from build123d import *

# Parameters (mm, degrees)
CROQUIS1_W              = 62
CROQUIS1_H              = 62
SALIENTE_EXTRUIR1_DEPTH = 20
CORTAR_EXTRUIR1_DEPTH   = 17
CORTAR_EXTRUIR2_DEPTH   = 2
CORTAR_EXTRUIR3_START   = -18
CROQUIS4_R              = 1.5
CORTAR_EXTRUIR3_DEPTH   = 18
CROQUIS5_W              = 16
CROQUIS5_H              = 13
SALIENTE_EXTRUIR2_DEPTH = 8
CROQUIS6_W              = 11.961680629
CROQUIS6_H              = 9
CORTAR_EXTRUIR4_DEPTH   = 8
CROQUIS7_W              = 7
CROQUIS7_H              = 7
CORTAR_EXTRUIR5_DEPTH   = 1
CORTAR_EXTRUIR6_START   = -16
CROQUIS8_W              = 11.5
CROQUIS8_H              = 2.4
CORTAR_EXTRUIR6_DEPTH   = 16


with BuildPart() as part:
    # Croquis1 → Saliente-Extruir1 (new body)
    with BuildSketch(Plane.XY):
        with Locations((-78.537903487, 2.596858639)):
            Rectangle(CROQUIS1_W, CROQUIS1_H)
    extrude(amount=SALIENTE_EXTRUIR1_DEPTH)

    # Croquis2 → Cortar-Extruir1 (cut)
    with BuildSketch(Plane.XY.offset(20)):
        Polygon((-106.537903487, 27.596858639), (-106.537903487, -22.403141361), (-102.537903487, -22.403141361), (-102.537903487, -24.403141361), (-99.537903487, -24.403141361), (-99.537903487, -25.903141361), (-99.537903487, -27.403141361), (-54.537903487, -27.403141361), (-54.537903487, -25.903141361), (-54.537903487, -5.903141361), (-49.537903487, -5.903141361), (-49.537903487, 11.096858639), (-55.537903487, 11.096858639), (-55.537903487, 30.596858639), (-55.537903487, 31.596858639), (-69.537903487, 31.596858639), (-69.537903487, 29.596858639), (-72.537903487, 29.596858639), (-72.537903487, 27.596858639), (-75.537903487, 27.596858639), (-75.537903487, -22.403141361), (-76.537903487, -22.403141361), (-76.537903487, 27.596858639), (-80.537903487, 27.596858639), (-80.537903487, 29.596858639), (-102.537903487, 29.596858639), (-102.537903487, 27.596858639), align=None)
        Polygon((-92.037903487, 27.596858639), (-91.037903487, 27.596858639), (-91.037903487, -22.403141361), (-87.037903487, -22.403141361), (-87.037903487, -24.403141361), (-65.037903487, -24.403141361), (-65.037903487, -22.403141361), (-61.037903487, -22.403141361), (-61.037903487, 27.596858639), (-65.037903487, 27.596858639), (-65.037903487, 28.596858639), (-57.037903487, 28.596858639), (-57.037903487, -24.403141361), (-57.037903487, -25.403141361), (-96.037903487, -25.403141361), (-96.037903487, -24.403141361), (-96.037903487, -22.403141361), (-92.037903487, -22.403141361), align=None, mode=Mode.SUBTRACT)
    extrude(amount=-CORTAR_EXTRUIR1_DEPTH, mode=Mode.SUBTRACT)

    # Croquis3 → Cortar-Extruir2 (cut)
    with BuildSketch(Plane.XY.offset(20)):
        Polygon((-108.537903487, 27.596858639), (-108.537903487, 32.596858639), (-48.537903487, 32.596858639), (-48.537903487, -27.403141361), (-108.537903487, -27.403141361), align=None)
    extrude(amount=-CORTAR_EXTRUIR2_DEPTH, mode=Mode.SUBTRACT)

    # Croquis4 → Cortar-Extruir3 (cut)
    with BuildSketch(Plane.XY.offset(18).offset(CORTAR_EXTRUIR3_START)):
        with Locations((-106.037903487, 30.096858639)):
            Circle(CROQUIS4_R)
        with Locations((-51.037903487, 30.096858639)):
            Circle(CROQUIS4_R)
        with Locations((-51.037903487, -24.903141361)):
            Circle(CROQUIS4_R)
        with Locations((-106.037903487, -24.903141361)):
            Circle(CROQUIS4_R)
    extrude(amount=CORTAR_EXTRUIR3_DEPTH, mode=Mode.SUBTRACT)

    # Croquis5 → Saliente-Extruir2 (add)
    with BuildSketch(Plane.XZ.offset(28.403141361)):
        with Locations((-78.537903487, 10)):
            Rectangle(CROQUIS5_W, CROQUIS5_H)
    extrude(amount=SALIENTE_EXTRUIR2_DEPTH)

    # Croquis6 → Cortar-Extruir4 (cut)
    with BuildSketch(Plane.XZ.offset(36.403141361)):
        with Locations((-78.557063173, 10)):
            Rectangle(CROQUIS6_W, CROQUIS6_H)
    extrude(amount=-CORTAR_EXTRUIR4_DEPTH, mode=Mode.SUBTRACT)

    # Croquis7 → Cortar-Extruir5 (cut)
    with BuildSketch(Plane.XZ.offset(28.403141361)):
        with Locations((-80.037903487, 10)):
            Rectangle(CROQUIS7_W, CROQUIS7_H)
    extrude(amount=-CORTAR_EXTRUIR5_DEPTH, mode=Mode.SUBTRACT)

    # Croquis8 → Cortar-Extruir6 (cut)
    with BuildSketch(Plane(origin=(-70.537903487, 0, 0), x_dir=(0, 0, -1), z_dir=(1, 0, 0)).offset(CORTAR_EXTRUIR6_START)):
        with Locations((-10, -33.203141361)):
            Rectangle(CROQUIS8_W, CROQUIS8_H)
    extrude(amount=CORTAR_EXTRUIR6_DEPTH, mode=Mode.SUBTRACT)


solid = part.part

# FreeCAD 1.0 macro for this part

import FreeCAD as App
import Part
import Sketcher

V = App.Vector

doc = App.newDocument("Part")
body = doc.addObject("PartDesign::Body", "Body")

# Sketch on XY plane
sketch1 = body.newObject("Sketcher::SketchObject", "Sketch")
sketch1.AttachmentSupport = (doc.getObject("XY_Plane"), [""])
sketch1.MapMode = "FlatFace"
sketch1.addGeometry([
    Part.LineSegment(V(-110, 34, 0), V(-110, -28, 0)),
    Part.LineSegment(V(-110, -28, 0), V(-48, -28, 0)),
    Part.LineSegment(V(-48, -28, 0), V(-48, 34, 0)),
    Part.LineSegment(V(-48, 34, 0), V(-110, 34, 0)),
], False)
sketch1.addConstraint([
    Sketcher.Constraint("Coincident", 0, 2, 1, 1),
    Sketcher.Constraint("Coincident", 1, 2, 2, 1),
    Sketcher.Constraint("Coincident", 2, 2, 3, 1),
    Sketcher.Constraint("Coincident", 3, 2, 0, 1),
    Sketcher.Constraint("Vertical", 0),
    Sketcher.Constraint("Horizontal", 1),
    Sketcher.Constraint("Vertical", 2),
    Sketcher.Constraint("Horizontal", 3),
    Sketcher.Constraint("Equal", 3, 0),
    Sketcher.Constraint("DistanceX", 1, 1, 1, 2, 62.0),
    Sketcher.Constraint("DistanceY", 0, 2, -1, 1, 28.403141),
    Sketcher.Constraint("DistanceX", 0, 2, -1, 1, 109.537903),
])
pad1 = body.newObject("PartDesign::Pad", "Pad")
pad1.Profile = sketch1
pad1.Length = 20

# Sketch on XY plane
sketch2 = body.newObject("Sketcher::SketchObject", "Sketch001")
sketch2.AttachmentSupport = (doc.getObject("XY_Plane"), [""])
sketch2.MapMode = "FlatFace"
sketch2.AttachmentOffset = App.Placement(V(0, 0, 20), App.Rotation())
sketch2.addGeometry([
    Part.LineSegment(V(-106.5, 27.6, 0), V(-106.5, -22.4, 0)),  # 0
    Part.LineSegment(V(-106.5, -22.4, 0), V(-102.5, -22.4, 0)),  # 1
    Part.LineSegment(V(-102.5, -22.4, 0), V(-102.5, -24.4, 0)),  # 2
    Part.LineSegment(V(-102.5, -24.4, 0), V(-99.5, -24.4, 0)),  # 3
    Part.LineSegment(V(-99.5, -24.4, 0), V(-99.5, -27.4, 0)),  # 4
    Part.LineSegment(V(-99.5, -27.4, 0), V(-54.5, -27.4, 0)),  # 5
    Part.LineSegment(V(-54.5, -27.4, 0), V(-54.5, -5.9, 0)),  # 6
    Part.LineSegment(V(-54.5, -5.9, 0), V(-49.5, -5.9, 0)),  # 7
    Part.LineSegment(V(-49.5, -5.9, 0), V(-49.5, 11.1, 0)),  # 8
    Part.LineSegment(V(-49.5, 11.1, 0), V(-55.5, 11.1, 0)),  # 9
    Part.LineSegment(V(-55.5, 11.1, 0), V(-55.5, 31.6, 0)),  # 10
    Part.LineSegment(V(-55.5, 31.6, 0), V(-69.5, 31.6, 0)),  # 11
    Part.LineSegment(V(-69.5, 31.6, 0), V(-69.5, 29.6, 0)),  # 12
    Part.LineSegment(V(-69.5, 29.6, 0), V(-72.5, 29.6, 0)),  # 13
    Part.LineSegment(V(-72.5, 29.6, 0), V(-72.5, 27.6, 0)),  # 14
    Part.LineSegment(V(-72.5, 27.6, 0), V(-75.5, 27.6, 0)),  # 15
    Part.LineSegment(V(-75.5, 27.6, 0), V(-75.5, -22.4, 0)),  # 16
    Part.LineSegment(V(-75.5, -22.4, 0), V(-76.5, -22.4, 0)),  # 17
    Part.LineSegment(V(-76.5, -22.4, 0), V(-76.5, 27.6, 0)),  # 18
    Part.LineSegment(V(-76.5, 27.6, 0), V(-80.5, 27.6, 0)),  # 19
    Part.LineSegment(V(-80.5, 27.6, 0), V(-80.5, 29.6, 0)),  # 20
    Part.LineSegment(V(-80.5, 29.6, 0), V(-102.5, 29.6, 0)),  # 21
    Part.LineSegment(V(-102.5, 29.6, 0), V(-102.5, 27.6, 0)),  # 22
    Part.LineSegment(V(-102.5, 27.6, 0), V(-106.5, 27.6, 0)),  # 23
    Part.LineSegment(V(-92, -22.4, 0), V(-92, 27.6, 0)),  # 24
    Part.LineSegment(V(-92, 27.6, 0), V(-91, 27.6, 0)),  # 25
    Part.LineSegment(V(-91, 27.6, 0), V(-91, -22.4, 0)),  # 26
    Part.LineSegment(V(-91, -22.4, 0), V(-87, -22.4, 0)),  # 27
    Part.LineSegment(V(-87, -22.4, 0), V(-87, -24.4, 0)),  # 28
    Part.LineSegment(V(-87, -24.4, 0), V(-65, -24.4, 0)),  # 29
    Part.LineSegment(V(-65, -24.4, 0), V(-65, -22.4, 0)),  # 30
    Part.LineSegment(V(-65, -22.4, 0), V(-61, -22.4, 0)),  # 31
    Part.LineSegment(V(-61, -22.4, 0), V(-61, 27.6, 0)),  # 32
    Part.LineSegment(V(-61, 27.6, 0), V(-65, 27.6, 0)),  # 33
    Part.LineSegment(V(-65, 27.6, 0), V(-65, 28.6, 0)),  # 34
    Part.LineSegment(V(-65, 28.6, 0), V(-57, 28.6, 0)),  # 35
    Part.LineSegment(V(-57, 28.6, 0), V(-57, -25.4, 0)),  # 36
    Part.LineSegment(V(-57, -25.4, 0), V(-96, -25.4, 0)),  # 37
    Part.LineSegment(V(-96, -25.4, 0), V(-96, -22.4, 0)),  # 38
    Part.LineSegment(V(-96, -22.4, 0), V(-92, -22.4, 0)),  # 39
], False)
sketch2.addConstraint([
    Sketcher.Constraint("Coincident", 0, 2, 1, 1),
    Sketcher.Constraint("Coincident", 1, 2, 2, 1),
    Sketcher.Constraint("Coincident", 2, 2, 3, 1),
    Sketcher.Constraint("Coincident", 3, 2, 4, 1),
    Sketcher.Constraint("Coincident", 4, 2, 5, 1),
    Sketcher.Constraint("Coincident", 5, 2, 6, 1),
    Sketcher.Constraint("Coincident", 6, 2, 7, 1),
    Sketcher.Constraint("Coincident", 7, 2, 8, 1),
    Sketcher.Constraint("Coincident", 8, 2, 9, 1),
    Sketcher.Constraint("Coincident", 9, 2, 10, 1),
    Sketcher.Constraint("Coincident", 10, 2, 11, 1),
    Sketcher.Constraint("Coincident", 11, 2, 12, 1),
    Sketcher.Constraint("Coincident", 12, 2, 13, 1),
    Sketcher.Constraint("Coincident", 13, 2, 14, 1),
    Sketcher.Constraint("Coincident", 14, 2, 15, 1),
    Sketcher.Constraint("Coincident", 15, 2, 16, 1),
    Sketcher.Constraint("Coincident", 16, 2, 17, 1),
    Sketcher.Constraint("Coincident", 17, 2, 18, 1),
    Sketcher.Constraint("Coincident", 18, 2, 19, 1),
    Sketcher.Constraint("Coincident", 19, 2, 20, 1),
    Sketcher.Constraint("Coincident", 20, 2, 21, 1),
    Sketcher.Constraint("Coincident", 21, 2, 22, 1),
    Sketcher.Constraint("Coincident", 22, 2, 23, 1),
    Sketcher.Constraint("Coincident", 23, 2, 0, 1),
    Sketcher.Constraint("Coincident", 24, 2, 25, 1),
    Sketcher.Constraint("Coincident", 25, 2, 26, 1),
    Sketcher.Constraint("Coincident", 26, 2, 27, 1),
    Sketcher.Constraint("Coincident", 27, 2, 28, 1),
    Sketcher.Constraint("Coincident", 28, 2, 29, 1),
    Sketcher.Constraint("Coincident", 29, 2, 30, 1),
    Sketcher.Constraint("Coincident", 30, 2, 31, 1),
    Sketcher.Constraint("Coincident", 31, 2, 32, 1),
    Sketcher.Constraint("Coincident", 32, 2, 33, 1),
    Sketcher.Constraint("Coincident", 33, 2, 34, 1),
    Sketcher.Constraint("Coincident", 34, 2, 35, 1),
    Sketcher.Constraint("Coincident", 35, 2, 36, 1),
    Sketcher.Constraint("Coincident", 36, 2, 37, 1),
    Sketcher.Constraint("Coincident", 37, 2, 38, 1),
    Sketcher.Constraint("Coincident", 38, 2, 39, 1),
    Sketcher.Constraint("Coincident", 39, 2, 24, 1),
    Sketcher.Constraint("Vertical", 0),
    Sketcher.Constraint("Horizontal", 1),
    Sketcher.Constraint("Vertical", 2),
    Sketcher.Constraint("Horizontal", 3),
    Sketcher.Constraint("Vertical", 4),
    Sketcher.Constraint("Horizontal", 5),
    Sketcher.Constraint("Vertical", 6),
    Sketcher.Constraint("Horizontal", 7),
    Sketcher.Constraint("Vertical", 8),
    Sketcher.Constraint("Horizontal", 9),
    Sketcher.Constraint("Vertical", 10),
    Sketcher.Constraint("Horizontal", 11),
    Sketcher.Constraint("Vertical", 12),
    Sketcher.Constraint("Horizontal", 13),
    Sketcher.Constraint("Vertical", 14),
    Sketcher.Constraint("Horizontal", 15),
    Sketcher.Constraint("Vertical", 16),
    Sketcher.Constraint("Horizontal", 17),
    Sketcher.Constraint("Vertical", 18),
    Sketcher.Constraint("Horizontal", 19),
    Sketcher.Constraint("Vertical", 20),
    Sketcher.Constraint("Horizontal", 21),
    Sketcher.Constraint("Vertical", 22),
    Sketcher.Constraint("Horizontal", 23),
    Sketcher.Constraint("Vertical", 24),
    Sketcher.Constraint("Horizontal", 25),
    Sketcher.Constraint("Vertical", 26),
    Sketcher.Constraint("Horizontal", 27),
    Sketcher.Constraint("Vertical", 28),
    Sketcher.Constraint("Horizontal", 29),
    Sketcher.Constraint("Vertical", 30),
    Sketcher.Constraint("Horizontal", 31),
    Sketcher.Constraint("Vertical", 32),
    Sketcher.Constraint("Horizontal", 33),
    Sketcher.Constraint("Vertical", 34),
    Sketcher.Constraint("Horizontal", 35),
    Sketcher.Constraint("Vertical", 36),
    Sketcher.Constraint("Horizontal", 37),
    Sketcher.Constraint("Vertical", 38),
    Sketcher.Constraint("Horizontal", 39),
    Sketcher.Constraint("Horizontal", 1, 2, 16, 2),
    Sketcher.Constraint("Horizontal", 15, 2, 18, 2),
    Sketcher.Constraint("Horizontal", 13, 2, 20, 2),
    Sketcher.Constraint("Horizontal", 19, 2, 22, 2),
    Sketcher.Constraint("Horizontal", 23, 2, 24, 2),
    Sketcher.Constraint("Horizontal", 17, 2, 26, 2),
    Sketcher.Constraint("Horizontal", 3, 2, 28, 2),
    Sketcher.Constraint("Horizontal", 27, 2, 30, 2),
    Sketcher.Constraint("Horizontal", 25, 2, 32, 2),
    Sketcher.Constraint("Horizontal", 31, 2, 38, 2),
    Sketcher.Constraint("Vertical", 2, 2, 21, 2),
    Sketcher.Constraint("Vertical", 30, 2, 33, 2),
    Sketcher.Constraint("Equal", 3, 13),
    Sketcher.Constraint("Equal", 13, 15),
    Sketcher.Constraint("Equal", 1, 19),
    Sketcher.Constraint("Equal", 17, 25),
    Sketcher.Constraint("Equal", 23, 27),
    Sketcher.Constraint("Equal", 21, 29),
    Sketcher.Constraint("Equal", 27, 31),
    Sketcher.Constraint("Equal", 33, 39),
    Sketcher.Constraint("Equal", 15, 4),
    Sketcher.Constraint("Equal", 2, 12),
    Sketcher.Constraint("Equal", 12, 14),
    Sketcher.Constraint("Equal", 25, 34),
    Sketcher.Constraint("Equal", 4, 38),
    Sketcher.Constraint("DistanceX", 1, 1, 1, 2, 4.0),
    Sketcher.Constraint("DistanceX", 3, 1, 3, 2, 3.0),
    Sketcher.Constraint("DistanceX", 5, 1, 5, 2, 45.0),
    Sketcher.Constraint("DistanceX", 7, 1, 7, 2, 5.0),
    Sketcher.Constraint("DistanceX", 9, 2, 9, 1, 6.0),
    Sketcher.Constraint("DistanceX", 11, 2, 11, 1, 14.0),
    Sketcher.Constraint("DistanceX", 17, 2, 17, 1, 1.0),
    Sketcher.Constraint("DistanceX", 35, 1, 35, 2, 8.0),
    Sketcher.Constraint("DistanceY", 0, 2, 0, 1, 50.0),
    Sketcher.Constraint("DistanceY", 2, 2, 2, 1, 2.0),
    Sketcher.Constraint("DistanceY", 8, 1, 8, 2, 17.0),
    Sketcher.Constraint("DistanceY", 6, 1, 6, 2, 21.5),
    Sketcher.Constraint("DistanceX", 22, 2, 24, 2, 10.5),
    Sketcher.Constraint("DistanceY", 0, 2, -1, 1, 22.403141),
    Sketcher.Constraint("DistanceX", 0, 2, -1, 1, 106.537903),
])
pocket1 = body.newObject("PartDesign::Pocket", "Pocket")
pocket1.Profile = sketch2
pocket1.Length = 17

# Sketch on XY plane
sketch3 = body.newObject("Sketcher::SketchObject", "Sketch002")
sketch3.AttachmentSupport = (doc.getObject("XY_Plane"), [""])
sketch3.MapMode = "FlatFace"
sketch3.AttachmentOffset = App.Placement(V(0, 0, 20), App.Rotation())
sketch3.addGeometry([
    Part.LineSegment(V(-109, 33, 0), V(-109, -27, 0)),
    Part.LineSegment(V(-109, -27, 0), V(-49, -27, 0)),
    Part.LineSegment(V(-49, -27, 0), V(-49, 33, 0)),
    Part.LineSegment(V(-49, 33, 0), V(-109, 33, 0)),
], False)
sketch3.addConstraint([
    Sketcher.Constraint("Coincident", 0, 2, 1, 1),
    Sketcher.Constraint("Coincident", 1, 2, 2, 1),
    Sketcher.Constraint("Coincident", 2, 2, 3, 1),
    Sketcher.Constraint("Coincident", 3, 2, 0, 1),
    Sketcher.Constraint("Vertical", 0),
    Sketcher.Constraint("Horizontal", 1),
    Sketcher.Constraint("Vertical", 2),
    Sketcher.Constraint("Horizontal", 3),
    Sketcher.Constraint("Equal", 3, 0),
    Sketcher.Constraint("DistanceX", 1, 1, 1, 2, 60.0),
    Sketcher.Constraint("DistanceY", 0, 2, -1, 1, 27.403141),
    Sketcher.Constraint("DistanceX", 0, 2, -1, 1, 108.537903),
])
pocket2 = body.newObject("PartDesign::Pocket", "Pocket001")
pocket2.Profile = sketch3
pocket2.Length = 2

# Sketch on XY plane
sketch4 = body.newObject("Sketcher::SketchObject", "Sketch003")
sketch4.AttachmentSupport = (doc.getObject("XY_Plane"), [""])
sketch4.MapMode = "FlatFace"
sketch4.addGeometry([
    Part.Circle(V(-106, 30.1, 0), V(0, 0, 1), 1.5),
    Part.Circle(V(-51, 30.1, 0), V(0, 0, 1), 1.5),
    Part.Circle(V(-51, -24.9, 0), V(0, 0, 1), 1.5),
    Part.Circle(V(-106, -24.9, 0), V(0, 0, 1), 1.5),
], False)
sketch4.addConstraint([
    Sketcher.Constraint("Equal", 0, 1),
    Sketcher.Constraint("Equal", 1, 2),
    Sketcher.Constraint("Equal", 2, 3),
    Sketcher.Constraint("Horizontal", 0, 3, 1, 3),
    Sketcher.Constraint("Horizontal", 2, 3, 3, 3),
    Sketcher.Constraint("Vertical", 1, 3, 2, 3),
    Sketcher.Constraint("Vertical", 0, 3, 3, 3),
    Sketcher.Constraint("Diameter", 0, 3.0),
    Sketcher.Constraint("DistanceX", 0, 3, 1, 3, 55.0),
    Sketcher.Constraint("DistanceY", 2, 3, 1, 3, 55.0),
    Sketcher.Constraint("DistanceY", -1, 1, 0, 3, 30.096859),
    Sketcher.Constraint("DistanceX", 0, 3, -1, 1, 106.037903),
])
pocket3 = body.newObject("PartDesign::Pocket", "Pocket002")
pocket3.Profile = sketch4
pocket3.Length = 18
pocket3.Reversed = True

# Sketch on XZ plane
sketch5 = body.newObject("Sketcher::SketchObject", "Sketch004")
sketch5.AttachmentSupport = (doc.getObject("XZ_Plane"), [""])
sketch5.MapMode = "FlatFace"
sketch5.AttachmentOffset = App.Placement(V(0, 0, 28.403141), App.Rotation())
sketch5.addGeometry([
    Part.LineSegment(V(-87, 16, 0), V(-87, 4, 0)),
    Part.LineSegment(V(-87, 4, 0), V(-71, 4, 0)),
    Part.LineSegment(V(-71, 4, 0), V(-71, 16, 0)),
    Part.LineSegment(V(-71, 16, 0), V(-87, 16, 0)),
], False)
sketch5.addConstraint([
    Sketcher.Constraint("Coincident", 0, 2, 1, 1),
    Sketcher.Constraint("Coincident", 1, 2, 2, 1),
    Sketcher.Constraint("Coincident", 2, 2, 3, 1),
    Sketcher.Constraint("Coincident", 3, 2, 0, 1),
    Sketcher.Constraint("Vertical", 0),
    Sketcher.Constraint("Horizontal", 1),
    Sketcher.Constraint("Vertical", 2),
    Sketcher.Constraint("Horizontal", 3),
    Sketcher.Constraint("DistanceX", 1, 1, 1, 2, 16.0),
    Sketcher.Constraint("DistanceY", 0, 2, 0, 1, 13.0),
    Sketcher.Constraint("DistanceY", -1, 1, 0, 2, 3.5),
    Sketcher.Constraint("DistanceX", 0, 2, -1, 1, 86.537903),
])
pad2 = body.newObject("PartDesign::Pad", "Pad001")
pad2.Profile = sketch5
pad2.Length = 8

# Sketch on XZ plane
sketch6 = body.newObject("Sketcher::SketchObject", "Sketch005")
sketch6.AttachmentSupport = (doc.getObject("XZ_Plane"), [""])
sketch6.MapMode = "FlatFace"
sketch6.AttachmentOffset = App.Placement(V(0, 0, 36.403141), App.Rotation())
sketch6.addGeometry([
    Part.LineSegment(V(-85, 14, 0), V(-85, 6, 0)),
    Part.LineSegment(V(-85, 6, 0), V(-73, 6, 0)),
    Part.LineSegment(V(-73, 6, 0), V(-73, 14, 0)),
    Part.LineSegment(V(-73, 14, 0), V(-85, 14, 0)),
], False)
sketch6.addConstraint([
    Sketcher.Constraint("Coincident", 0, 2, 1, 1),
    Sketcher.Constraint("Coincident", 1, 2, 2, 1),
    Sketcher.Constraint("Coincident", 2, 2, 3, 1),
    Sketcher.Constraint("Coincident", 3, 2, 0, 1),
    Sketcher.Constraint("Vertical", 0),
    Sketcher.Constraint("Horizontal", 1),
    Sketcher.Constraint("Vertical", 2),
    Sketcher.Constraint("Horizontal", 3),
    Sketcher.Constraint("DistanceY", 0, 2, 0, 1, 9.0),
    Sketcher.Constraint("DistanceY", -1, 1, 0, 2, 5.5),
    Sketcher.Constraint("DistanceX", 1, 1, 1, 2, 11.961681),
    Sketcher.Constraint("DistanceX", 0, 2, -1, 1, 84.537903),
])
pocket4 = body.newObject("PartDesign::Pocket", "Pocket003")
pocket4.Profile = sketch6
pocket4.Length = 8

# Sketch on XZ plane
sketch7 = body.newObject("Sketcher::SketchObject", "Sketch006")
sketch7.AttachmentSupport = (doc.getObject("XZ_Plane"), [""])
sketch7.MapMode = "FlatFace"
sketch7.AttachmentOffset = App.Placement(V(0, 0, 28.403141), App.Rotation())
sketch7.addGeometry([
    Part.LineSegment(V(-84, 14, 0), V(-84, 6, 0)),
    Part.LineSegment(V(-84, 6, 0), V(-77, 6, 0)),
    Part.LineSegment(V(-77, 6, 0), V(-77, 14, 0)),
    Part.LineSegment(V(-77, 14, 0), V(-84, 14, 0)),
], False)
sketch7.addConstraint([
    Sketcher.Constraint("Coincident", 0, 2, 1, 1),
    Sketcher.Constraint("Coincident", 1, 2, 2, 1),
    Sketcher.Constraint("Coincident", 2, 2, 3, 1),
    Sketcher.Constraint("Coincident", 3, 2, 0, 1),
    Sketcher.Constraint("Vertical", 0),
    Sketcher.Constraint("Horizontal", 1),
    Sketcher.Constraint("Vertical", 2),
    Sketcher.Constraint("Horizontal", 3),
    Sketcher.Constraint("Equal", 3, 0),
    Sketcher.Constraint("DistanceX", 1, 1, 1, 2, 7.0),
    Sketcher.Constraint("DistanceY", -1, 1, 0, 2, 6.5),
    Sketcher.Constraint("DistanceX", 0, 2, -1, 1, 83.537903),
])
pocket5 = body.newObject("PartDesign::Pocket", "Pocket004")
pocket5.Profile = sketch7
pocket5.Length = 1

# Sketch on YZ plane
sketch8 = body.newObject("Sketcher::SketchObject", "Sketch007")
sketch8.AttachmentSupport = (doc.getObject("YZ_Plane"), [""])
sketch8.MapMode = "FlatFace"
sketch8.AttachmentOffset = App.Placement(V(0, 0, -86.537903), App.Rotation())
sketch8.addGeometry([
    Part.LineSegment(V(-32, 15.8, 0), V(-34.4, 15.8, 0)),
    Part.LineSegment(V(-34.4, 15.8, 0), V(-34.4, 4.2, 0)),
    Part.LineSegment(V(-34.4, 4.2, 0), V(-32, 4.2, 0)),
    Part.LineSegment(V(-32, 4.2, 0), V(-32, 15.8, 0)),
], False)
sketch8.addConstraint([
    Sketcher.Constraint("Coincident", 0, 2, 1, 1),
    Sketcher.Constraint("Coincident", 1, 2, 2, 1),
    Sketcher.Constraint("Coincident", 2, 2, 3, 1),
    Sketcher.Constraint("Coincident", 3, 2, 0, 1),
    Sketcher.Constraint("Horizontal", 0),
    Sketcher.Constraint("Vertical", 1),
    Sketcher.Constraint("Horizontal", 2),
    Sketcher.Constraint("Vertical", 3),
    Sketcher.Constraint("DistanceX", 0, 2, 0, 1, 2.4),
    Sketcher.Constraint("DistanceY", 1, 2, 1, 1, 11.5),
    Sketcher.Constraint("DistanceY", -1, 1, 0, 2, 15.75),
    Sketcher.Constraint("DistanceX", 0, 2, -1, 1, 34.403141),
])
pocket6 = body.newObject("PartDesign::Pocket", "Pocket005")
pocket6.Profile = sketch8
pocket6.Length = 16
pocket6.Reversed = True

doc.recompute()
